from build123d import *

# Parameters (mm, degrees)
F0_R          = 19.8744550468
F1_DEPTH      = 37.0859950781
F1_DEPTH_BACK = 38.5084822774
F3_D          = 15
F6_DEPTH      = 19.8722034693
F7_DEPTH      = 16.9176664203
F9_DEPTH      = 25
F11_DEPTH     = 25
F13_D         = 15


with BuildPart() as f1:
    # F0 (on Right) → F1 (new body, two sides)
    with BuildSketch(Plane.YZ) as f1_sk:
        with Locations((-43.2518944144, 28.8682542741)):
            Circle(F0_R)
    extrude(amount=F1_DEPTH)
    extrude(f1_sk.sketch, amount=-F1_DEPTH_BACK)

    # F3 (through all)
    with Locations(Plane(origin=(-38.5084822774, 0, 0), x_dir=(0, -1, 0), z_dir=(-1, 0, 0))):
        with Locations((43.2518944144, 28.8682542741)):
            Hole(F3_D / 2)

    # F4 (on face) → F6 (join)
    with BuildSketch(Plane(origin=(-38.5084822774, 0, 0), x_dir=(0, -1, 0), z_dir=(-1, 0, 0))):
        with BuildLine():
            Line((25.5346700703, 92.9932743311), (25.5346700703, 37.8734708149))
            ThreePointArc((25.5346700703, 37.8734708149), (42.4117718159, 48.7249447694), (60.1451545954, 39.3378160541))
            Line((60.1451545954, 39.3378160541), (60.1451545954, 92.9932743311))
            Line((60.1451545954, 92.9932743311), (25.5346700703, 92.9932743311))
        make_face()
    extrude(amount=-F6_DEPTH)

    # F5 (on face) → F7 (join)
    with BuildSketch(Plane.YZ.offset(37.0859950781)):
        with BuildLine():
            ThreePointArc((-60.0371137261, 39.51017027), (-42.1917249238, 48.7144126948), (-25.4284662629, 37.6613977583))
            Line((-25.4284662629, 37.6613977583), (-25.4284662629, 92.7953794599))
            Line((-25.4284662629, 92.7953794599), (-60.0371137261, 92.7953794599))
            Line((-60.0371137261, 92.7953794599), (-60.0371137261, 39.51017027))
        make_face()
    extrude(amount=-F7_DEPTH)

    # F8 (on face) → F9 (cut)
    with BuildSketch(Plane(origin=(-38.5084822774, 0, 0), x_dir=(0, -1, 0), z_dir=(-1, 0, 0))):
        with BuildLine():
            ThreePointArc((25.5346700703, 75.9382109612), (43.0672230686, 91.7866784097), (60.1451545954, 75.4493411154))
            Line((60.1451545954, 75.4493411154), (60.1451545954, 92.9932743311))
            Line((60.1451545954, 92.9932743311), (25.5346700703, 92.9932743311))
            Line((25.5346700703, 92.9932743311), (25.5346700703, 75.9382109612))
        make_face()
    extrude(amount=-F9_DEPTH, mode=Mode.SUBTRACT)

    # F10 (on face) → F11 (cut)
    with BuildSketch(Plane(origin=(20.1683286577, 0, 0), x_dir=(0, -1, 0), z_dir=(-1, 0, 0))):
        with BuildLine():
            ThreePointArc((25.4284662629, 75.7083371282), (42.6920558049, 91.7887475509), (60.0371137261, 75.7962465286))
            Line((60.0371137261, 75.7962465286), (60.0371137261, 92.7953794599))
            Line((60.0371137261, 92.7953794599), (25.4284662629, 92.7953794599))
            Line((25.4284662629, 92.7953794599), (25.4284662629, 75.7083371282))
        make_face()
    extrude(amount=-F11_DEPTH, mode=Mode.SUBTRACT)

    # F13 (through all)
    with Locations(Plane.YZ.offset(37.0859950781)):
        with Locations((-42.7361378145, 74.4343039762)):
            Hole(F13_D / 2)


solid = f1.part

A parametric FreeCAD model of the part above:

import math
import FreeCAD as App
import Part
import Sketcher
from FreeCAD import Vector

doc = App.newDocument("Part")
body = doc.addObject("PartDesign::Body", "Body")

# Sketch on YZ plane
sketch1 = doc.addObject("Sketcher::SketchObject", "Sketch")
body.addObject(sketch1)
sketch1.AttachmentSupport = (doc.YZ_Plane, [""])
sketch1.MapMode = "FlatFace"
sketch1.addGeometry(Part.Circle(Vector(-43, 29, 0), Vector(0, 0, 1), 20), False)
sketch1.addConstraint(Sketcher.Constraint("Diameter", 0, 39.74891))
sketch1.addConstraint(Sketcher.Constraint("DistanceX", 0, 3, -1, 1, 43.251894))
sketch1.addConstraint(Sketcher.Constraint("DistanceY", -1, 1, 0, 3, 28.868254))
pad1 = doc.addObject("PartDesign::Pad", "Pad")
body.addObject(pad1)
pad1.Profile = sketch1
pad1.Type = "TwoLengths"
pad1.Length = 37.085995
pad1.Length2 = 38.508482

# Sketch on YZ plane
sketch2 = doc.addObject("Sketcher::SketchObject", "Sketch001")
body.addObject(sketch2)
sketch2.AttachmentSupport = (doc.YZ_Plane, [""])
sketch2.MapMode = "FlatFace"
sketch2.AttachmentOffset = App.Placement(Vector(0, 0, -38.508482), App.Rotation())
sketch2.addGeometry(Part.Circle(Vector(-43, 29, 0), Vector(0, 0, 1), 8), False)
sketch2.addConstraint(Sketcher.Constraint("Diameter", 0, 15.0))
sketch2.addConstraint(Sketcher.Constraint("DistanceX", 0, 3, -1, 1, 43.251894))
sketch2.addConstraint(Sketcher.Constraint("DistanceY", -1, 1, 0, 3, 28.868254))
doc.recompute()
hole = doc.addObject("PartDesign::Hole", "Hole")
body.addObject(hole)
hole.Profile = sketch2
hole.ThreadType = "None"
hole.Diameter = 15
hole.DepthType = "ThroughAll"
hole.Reversed = True

# Sketch on YZ plane
sketch3 = doc.addObject("Sketcher::SketchObject", "Sketch002")
body.addObject(sketch3)
sketch3.AttachmentSupport = (doc.YZ_Plane, [""])
sketch3.MapMode = "FlatFace"
sketch3.AttachmentOffset = App.Placement(Vector(0, 0, -38.508482), App.Rotation())
sketch3.addGeometry(Part.LineSegment(Vector(-26, 93, 0), Vector(-26, 38, 0)), False)
sketch3.addGeometry(Part.ArcOfCircle(Part.Circle(Vector(-43, 29, 0), Vector(0, 0, 1), 20), math.radians(27), math.radians(148)), False)
sketch3.addGeometry(Part.LineSegment(Vector(-60, 39, 0), Vector(-60, 93, 0)), False)
sketch3.addGeometry(Part.LineSegment(Vector(-60, 93, 0), Vector(-26, 93, 0)), False)
sketch3.addConstraint(Sketcher.Constraint("Coincident", 0, 2, 1, 1))
sketch3.addConstraint(Sketcher.Constraint("Coincident", 1, 2, 2, 1))
sketch3.addConstraint(Sketcher.Constraint("Coincident", 2, 2, 3, 1))
sketch3.addConstraint(Sketcher.Constraint("Coincident", 3, 2, 0, 1))
sketch3.addConstraint(Sketcher.Constraint("Vertical", 0))
sketch3.addConstraint(Sketcher.Constraint("Vertical", 2))
sketch3.addConstraint(Sketcher.Constraint("Horizontal", 3))
sketch3.addConstraint(Sketcher.Constraint("Radius", 1, 19.874455))
sketch3.addConstraint(Sketcher.Constraint("DistanceY", 2, 1, 2, 2, 53.655458))
sketch3.addConstraint(Sketcher.Constraint("DistanceX", 3, 1, 3, 2, 34.610485))
sketch3.addConstraint(Sketcher.Constraint("DistanceY", 0, 2, 0, 1, 55.119804))
sketch3.addConstraint(Sketcher.Constraint("DistanceX", 0, 2, -1, 1, 25.53467))
sketch3.addConstraint(Sketcher.Constraint("DistanceY", -1, 1, 0, 2, 37.873471))
pad2 = doc.addObject("PartDesign::Pad", "Pad001")
body.addObject(pad2)
pad2.Profile = sketch3
pad2.Length = 19.872203

# Sketch on YZ plane
sketch4 = doc.addObject("Sketcher::SketchObject", "Sketch003")
body.addObject(sketch4)
sketch4.AttachmentSupport = (doc.YZ_Plane, [""])
sketch4.MapMode = "FlatFace"
sketch4.AttachmentOffset = App.Placement(Vector(0, 0, 37.085995), App.Rotation())
sketch4.addGeometry(Part.ArcOfCircle(Part.Circle(Vector(-43, 29, 0), Vector(0, 0, 1), 20), math.radians(26), math.radians(148)), False)
sketch4.addGeometry(Part.LineSegment(Vector(-25, 38, 0), Vector(-25, 93, 0)), False)
sketch4.addGeometry(Part.LineSegment(Vector(-25, 93, 0), Vector(-60, 93, 0)), False)
sketch4.addGeometry(Part.LineSegment(Vector(-60, 93, 0), Vector(-60, 40, 0)), False)
sketch4.addConstraint(Sketcher.Constraint("Coincident", 0, 1, 1, 1))
sketch4.addConstraint(Sketcher.Constraint("Coincident", 1, 2, 2, 1))
sketch4.addConstraint(Sketcher.Constraint("Coincident", 2, 2, 3, 1))
sketch4.addConstraint(Sketcher.Constraint("Coincident", 3, 2, 0, 2))
sketch4.addConstraint(Sketcher.Constraint("Vertical", 1))
sketch4.addConstraint(Sketcher.Constraint("Horizontal", 2))
sketch4.addConstraint(Sketcher.Constraint("Vertical", 3))
sketch4.addConstraint(Sketcher.Constraint("Radius", 0, 19.874455))
sketch4.addConstraint(Sketcher.Constraint("DistanceY", 1, 1, 1, 2, 55.133982))
sketch4.addConstraint(Sketcher.Constraint("DistanceY", 3, 2, 3, 1, 53.285209))
sketch4.addConstraint(Sketcher.Constraint("DistanceX", 2, 2, 2, 1, 34.608647))
sketch4.addConstraint(Sketcher.Constraint("DistanceY", -1, 1, 1, 2, 92.795379))
sketch4.addConstraint(Sketcher.Constraint("DistanceX", 0, 3, -1, 1, 43.251894))
pad3 = doc.addObject("PartDesign::Pad", "Pad002")
body.addObject(pad3)
pad3.Profile = sketch4
pad3.Length = 16.917666
pad3.Reversed = True

# Sketch on YZ plane
sketch5 = doc.addObject("Sketcher::SketchObject", "Sketch004")
body.addObject(sketch5)
sketch5.AttachmentSupport = (doc.YZ_Plane, [""])
sketch5.MapMode = "FlatFace"
sketch5.AttachmentOffset = App.Placement(Vector(0, 0, -38.508482), App.Rotation())
sketch5.addGeometry(Part.ArcOfCircle(Part.Circle(Vector(-43, 74, 0), Vector(0, 0, 1), 17), math.radians(5), math.radians(177)), False)
sketch5.addGeometry(Part.LineSegment(Vector(-60, 75, 0), Vector(-60, 93, 0)), False)
sketch5.addGeometry(Part.LineSegment(Vector(-60, 93, 0), Vector(-26, 93, 0)), False)
sketch5.addGeometry(Part.LineSegment(Vector(-26, 93, 0), Vector(-26, 76, 0)), False)
sketch5.addConstraint(Sketcher.Constraint("Coincident", 0, 2, 1, 1))
sketch5.addConstraint(Sketcher.Constraint("Coincident", 1, 2, 2, 1))
sketch5.addConstraint(Sketcher.Constraint("Coincident", 2, 2, 3, 1))
sketch5.addConstraint(Sketcher.Constraint("Coincident", 3, 2, 0, 1))
sketch5.addConstraint(Sketcher.Constraint("Vertical", 1))
sketch5.addConstraint(Sketcher.Constraint("Horizontal", 2))
sketch5.addConstraint(Sketcher.Constraint("Vertical", 3))
sketch5.addConstraint(Sketcher.Constraint("Radius", 0, 17.352638))
sketch5.addConstraint(Sketcher.Constraint("DistanceX", 2, 1, 2, 2, 34.610485))
sketch5.addConstraint(Sketcher.Constraint("DistanceY", 1, 1, 1, 2, 17.543933))
sketch5.addConstraint(Sketcher.Constraint("DistanceY", 3, 2, 3, 1, 17.055063))
sketch5.addConstraint(Sketcher.Constraint("DistanceY", -1, 1, 0, 3, 74.435771))
sketch5.addConstraint(Sketcher.Constraint("DistanceX", 2, 2, -1, 1, 25.53467))
pocket1 = doc.addObject("PartDesign::Pocket", "Pocket")
body.addObject(pocket1)
pocket1.Profile = sketch5
pocket1.Length = 25
pocket1.Reversed = True

# Sketch on YZ plane
sketch6 = doc.addObject("Sketcher::SketchObject", "Sketch005")
body.addObject(sketch6)
sketch6.AttachmentSupport = (doc.YZ_Plane, [""])
sketch6.MapMode = "FlatFace"
sketch6.AttachmentOffset = App.Placement(Vector(0, 0, 20.168329), App.Rotation())
sketch6.addGeometry(Part.ArcOfCircle(Part.Circle(Vector(-43, 74, 0), Vector(0, 0, 1), 17), math.radians(4), math.radians(175)), False)
sketch6.addGeometry(Part.LineSegment(Vector(-60, 76, 0), Vector(-60, 93, 0)), False)
sketch6.addGeometry(Part.LineSegment(Vector(-60, 93, 0), Vector(-25, 93, 0)), False)
sketch6.addGeometry(Part.LineSegment(Vector(-25, 93, 0), Vector(-25, 76, 0)), False)
sketch6.addConstraint(Sketcher.Constraint("Coincident", 0, 2, 1, 1))
sketch6.addConstraint(Sketcher.Constraint("Coincident", 1, 2, 2, 1))
sketch6.addConstraint(Sketcher.Constraint("Coincident", 2, 2, 3, 1))
sketch6.addConstraint(Sketcher.Constraint("Coincident", 3, 2, 0, 1))
sketch6.addConstraint(Sketcher.Constraint("Vertical", 1))
sketch6.addConstraint(Sketcher.Constraint("Horizontal", 2))
sketch6.addConstraint(Sketcher.Constraint("Vertical", 3))
sketch6.addConstraint(Sketcher.Constraint("Radius", 0, 17.3545))
sketch6.addConstraint(Sketcher.Constraint("DistanceX", 2, 1, 2, 2, 34.608647))
sketch6.addConstraint(Sketcher.Constraint("DistanceY", 1, 1, 1, 2, 16.999133))
sketch6.addConstraint(Sketcher.Constraint("DistanceY", 3, 2, 3, 1, 17.087042))
sketch6.addConstraint(Sketcher.Constraint("DistanceY", -1, 1, 1, 2, 92.795379))
sketch6.addConstraint(Sketcher.Constraint("DistanceX", 0, 3, -1, 1, 42.736138))
pocket2 = doc.addObject("PartDesign::Pocket", "Pocket001")
body.addObject(pocket2)
pocket2.Profile = sketch6
pocket2.Length = 25
pocket2.Reversed = True

# Sketch on YZ plane
sketch7 = doc.addObject("Sketcher::SketchObject", "Sketch006")
body.addObject(sketch7)
sketch7.AttachmentSupport = (doc.YZ_Plane, [""])
sketch7.MapMode = "FlatFace"
sketch7.AttachmentOffset = App.Placement(Vector(0, 0, 37.085995), App.Rotation())
sketch7.addGeometry(Part.Circle(Vector(-43, 74, 0), Vector(0, 0, 1), 8), False)
sketch7.addConstraint(Sketcher.Constraint("Diameter", 0, 15.0))
sketch7.addConstraint(Sketcher.Constraint("DistanceX", 0, 3, -1, 1, 42.736138))
sketch7.addConstraint(Sketcher.Constraint("DistanceY", -1, 1, 0, 3, 74.434304))
doc.recompute()
hole2 = doc.addObject("PartDesign::Hole", "Hole001")
body.addObject(hole2)
hole2.Profile = sketch7
hole2.ThreadType = "None"
hole2.Diameter = 15
hole2.DepthType = "ThroughAll"

doc.recompute()
